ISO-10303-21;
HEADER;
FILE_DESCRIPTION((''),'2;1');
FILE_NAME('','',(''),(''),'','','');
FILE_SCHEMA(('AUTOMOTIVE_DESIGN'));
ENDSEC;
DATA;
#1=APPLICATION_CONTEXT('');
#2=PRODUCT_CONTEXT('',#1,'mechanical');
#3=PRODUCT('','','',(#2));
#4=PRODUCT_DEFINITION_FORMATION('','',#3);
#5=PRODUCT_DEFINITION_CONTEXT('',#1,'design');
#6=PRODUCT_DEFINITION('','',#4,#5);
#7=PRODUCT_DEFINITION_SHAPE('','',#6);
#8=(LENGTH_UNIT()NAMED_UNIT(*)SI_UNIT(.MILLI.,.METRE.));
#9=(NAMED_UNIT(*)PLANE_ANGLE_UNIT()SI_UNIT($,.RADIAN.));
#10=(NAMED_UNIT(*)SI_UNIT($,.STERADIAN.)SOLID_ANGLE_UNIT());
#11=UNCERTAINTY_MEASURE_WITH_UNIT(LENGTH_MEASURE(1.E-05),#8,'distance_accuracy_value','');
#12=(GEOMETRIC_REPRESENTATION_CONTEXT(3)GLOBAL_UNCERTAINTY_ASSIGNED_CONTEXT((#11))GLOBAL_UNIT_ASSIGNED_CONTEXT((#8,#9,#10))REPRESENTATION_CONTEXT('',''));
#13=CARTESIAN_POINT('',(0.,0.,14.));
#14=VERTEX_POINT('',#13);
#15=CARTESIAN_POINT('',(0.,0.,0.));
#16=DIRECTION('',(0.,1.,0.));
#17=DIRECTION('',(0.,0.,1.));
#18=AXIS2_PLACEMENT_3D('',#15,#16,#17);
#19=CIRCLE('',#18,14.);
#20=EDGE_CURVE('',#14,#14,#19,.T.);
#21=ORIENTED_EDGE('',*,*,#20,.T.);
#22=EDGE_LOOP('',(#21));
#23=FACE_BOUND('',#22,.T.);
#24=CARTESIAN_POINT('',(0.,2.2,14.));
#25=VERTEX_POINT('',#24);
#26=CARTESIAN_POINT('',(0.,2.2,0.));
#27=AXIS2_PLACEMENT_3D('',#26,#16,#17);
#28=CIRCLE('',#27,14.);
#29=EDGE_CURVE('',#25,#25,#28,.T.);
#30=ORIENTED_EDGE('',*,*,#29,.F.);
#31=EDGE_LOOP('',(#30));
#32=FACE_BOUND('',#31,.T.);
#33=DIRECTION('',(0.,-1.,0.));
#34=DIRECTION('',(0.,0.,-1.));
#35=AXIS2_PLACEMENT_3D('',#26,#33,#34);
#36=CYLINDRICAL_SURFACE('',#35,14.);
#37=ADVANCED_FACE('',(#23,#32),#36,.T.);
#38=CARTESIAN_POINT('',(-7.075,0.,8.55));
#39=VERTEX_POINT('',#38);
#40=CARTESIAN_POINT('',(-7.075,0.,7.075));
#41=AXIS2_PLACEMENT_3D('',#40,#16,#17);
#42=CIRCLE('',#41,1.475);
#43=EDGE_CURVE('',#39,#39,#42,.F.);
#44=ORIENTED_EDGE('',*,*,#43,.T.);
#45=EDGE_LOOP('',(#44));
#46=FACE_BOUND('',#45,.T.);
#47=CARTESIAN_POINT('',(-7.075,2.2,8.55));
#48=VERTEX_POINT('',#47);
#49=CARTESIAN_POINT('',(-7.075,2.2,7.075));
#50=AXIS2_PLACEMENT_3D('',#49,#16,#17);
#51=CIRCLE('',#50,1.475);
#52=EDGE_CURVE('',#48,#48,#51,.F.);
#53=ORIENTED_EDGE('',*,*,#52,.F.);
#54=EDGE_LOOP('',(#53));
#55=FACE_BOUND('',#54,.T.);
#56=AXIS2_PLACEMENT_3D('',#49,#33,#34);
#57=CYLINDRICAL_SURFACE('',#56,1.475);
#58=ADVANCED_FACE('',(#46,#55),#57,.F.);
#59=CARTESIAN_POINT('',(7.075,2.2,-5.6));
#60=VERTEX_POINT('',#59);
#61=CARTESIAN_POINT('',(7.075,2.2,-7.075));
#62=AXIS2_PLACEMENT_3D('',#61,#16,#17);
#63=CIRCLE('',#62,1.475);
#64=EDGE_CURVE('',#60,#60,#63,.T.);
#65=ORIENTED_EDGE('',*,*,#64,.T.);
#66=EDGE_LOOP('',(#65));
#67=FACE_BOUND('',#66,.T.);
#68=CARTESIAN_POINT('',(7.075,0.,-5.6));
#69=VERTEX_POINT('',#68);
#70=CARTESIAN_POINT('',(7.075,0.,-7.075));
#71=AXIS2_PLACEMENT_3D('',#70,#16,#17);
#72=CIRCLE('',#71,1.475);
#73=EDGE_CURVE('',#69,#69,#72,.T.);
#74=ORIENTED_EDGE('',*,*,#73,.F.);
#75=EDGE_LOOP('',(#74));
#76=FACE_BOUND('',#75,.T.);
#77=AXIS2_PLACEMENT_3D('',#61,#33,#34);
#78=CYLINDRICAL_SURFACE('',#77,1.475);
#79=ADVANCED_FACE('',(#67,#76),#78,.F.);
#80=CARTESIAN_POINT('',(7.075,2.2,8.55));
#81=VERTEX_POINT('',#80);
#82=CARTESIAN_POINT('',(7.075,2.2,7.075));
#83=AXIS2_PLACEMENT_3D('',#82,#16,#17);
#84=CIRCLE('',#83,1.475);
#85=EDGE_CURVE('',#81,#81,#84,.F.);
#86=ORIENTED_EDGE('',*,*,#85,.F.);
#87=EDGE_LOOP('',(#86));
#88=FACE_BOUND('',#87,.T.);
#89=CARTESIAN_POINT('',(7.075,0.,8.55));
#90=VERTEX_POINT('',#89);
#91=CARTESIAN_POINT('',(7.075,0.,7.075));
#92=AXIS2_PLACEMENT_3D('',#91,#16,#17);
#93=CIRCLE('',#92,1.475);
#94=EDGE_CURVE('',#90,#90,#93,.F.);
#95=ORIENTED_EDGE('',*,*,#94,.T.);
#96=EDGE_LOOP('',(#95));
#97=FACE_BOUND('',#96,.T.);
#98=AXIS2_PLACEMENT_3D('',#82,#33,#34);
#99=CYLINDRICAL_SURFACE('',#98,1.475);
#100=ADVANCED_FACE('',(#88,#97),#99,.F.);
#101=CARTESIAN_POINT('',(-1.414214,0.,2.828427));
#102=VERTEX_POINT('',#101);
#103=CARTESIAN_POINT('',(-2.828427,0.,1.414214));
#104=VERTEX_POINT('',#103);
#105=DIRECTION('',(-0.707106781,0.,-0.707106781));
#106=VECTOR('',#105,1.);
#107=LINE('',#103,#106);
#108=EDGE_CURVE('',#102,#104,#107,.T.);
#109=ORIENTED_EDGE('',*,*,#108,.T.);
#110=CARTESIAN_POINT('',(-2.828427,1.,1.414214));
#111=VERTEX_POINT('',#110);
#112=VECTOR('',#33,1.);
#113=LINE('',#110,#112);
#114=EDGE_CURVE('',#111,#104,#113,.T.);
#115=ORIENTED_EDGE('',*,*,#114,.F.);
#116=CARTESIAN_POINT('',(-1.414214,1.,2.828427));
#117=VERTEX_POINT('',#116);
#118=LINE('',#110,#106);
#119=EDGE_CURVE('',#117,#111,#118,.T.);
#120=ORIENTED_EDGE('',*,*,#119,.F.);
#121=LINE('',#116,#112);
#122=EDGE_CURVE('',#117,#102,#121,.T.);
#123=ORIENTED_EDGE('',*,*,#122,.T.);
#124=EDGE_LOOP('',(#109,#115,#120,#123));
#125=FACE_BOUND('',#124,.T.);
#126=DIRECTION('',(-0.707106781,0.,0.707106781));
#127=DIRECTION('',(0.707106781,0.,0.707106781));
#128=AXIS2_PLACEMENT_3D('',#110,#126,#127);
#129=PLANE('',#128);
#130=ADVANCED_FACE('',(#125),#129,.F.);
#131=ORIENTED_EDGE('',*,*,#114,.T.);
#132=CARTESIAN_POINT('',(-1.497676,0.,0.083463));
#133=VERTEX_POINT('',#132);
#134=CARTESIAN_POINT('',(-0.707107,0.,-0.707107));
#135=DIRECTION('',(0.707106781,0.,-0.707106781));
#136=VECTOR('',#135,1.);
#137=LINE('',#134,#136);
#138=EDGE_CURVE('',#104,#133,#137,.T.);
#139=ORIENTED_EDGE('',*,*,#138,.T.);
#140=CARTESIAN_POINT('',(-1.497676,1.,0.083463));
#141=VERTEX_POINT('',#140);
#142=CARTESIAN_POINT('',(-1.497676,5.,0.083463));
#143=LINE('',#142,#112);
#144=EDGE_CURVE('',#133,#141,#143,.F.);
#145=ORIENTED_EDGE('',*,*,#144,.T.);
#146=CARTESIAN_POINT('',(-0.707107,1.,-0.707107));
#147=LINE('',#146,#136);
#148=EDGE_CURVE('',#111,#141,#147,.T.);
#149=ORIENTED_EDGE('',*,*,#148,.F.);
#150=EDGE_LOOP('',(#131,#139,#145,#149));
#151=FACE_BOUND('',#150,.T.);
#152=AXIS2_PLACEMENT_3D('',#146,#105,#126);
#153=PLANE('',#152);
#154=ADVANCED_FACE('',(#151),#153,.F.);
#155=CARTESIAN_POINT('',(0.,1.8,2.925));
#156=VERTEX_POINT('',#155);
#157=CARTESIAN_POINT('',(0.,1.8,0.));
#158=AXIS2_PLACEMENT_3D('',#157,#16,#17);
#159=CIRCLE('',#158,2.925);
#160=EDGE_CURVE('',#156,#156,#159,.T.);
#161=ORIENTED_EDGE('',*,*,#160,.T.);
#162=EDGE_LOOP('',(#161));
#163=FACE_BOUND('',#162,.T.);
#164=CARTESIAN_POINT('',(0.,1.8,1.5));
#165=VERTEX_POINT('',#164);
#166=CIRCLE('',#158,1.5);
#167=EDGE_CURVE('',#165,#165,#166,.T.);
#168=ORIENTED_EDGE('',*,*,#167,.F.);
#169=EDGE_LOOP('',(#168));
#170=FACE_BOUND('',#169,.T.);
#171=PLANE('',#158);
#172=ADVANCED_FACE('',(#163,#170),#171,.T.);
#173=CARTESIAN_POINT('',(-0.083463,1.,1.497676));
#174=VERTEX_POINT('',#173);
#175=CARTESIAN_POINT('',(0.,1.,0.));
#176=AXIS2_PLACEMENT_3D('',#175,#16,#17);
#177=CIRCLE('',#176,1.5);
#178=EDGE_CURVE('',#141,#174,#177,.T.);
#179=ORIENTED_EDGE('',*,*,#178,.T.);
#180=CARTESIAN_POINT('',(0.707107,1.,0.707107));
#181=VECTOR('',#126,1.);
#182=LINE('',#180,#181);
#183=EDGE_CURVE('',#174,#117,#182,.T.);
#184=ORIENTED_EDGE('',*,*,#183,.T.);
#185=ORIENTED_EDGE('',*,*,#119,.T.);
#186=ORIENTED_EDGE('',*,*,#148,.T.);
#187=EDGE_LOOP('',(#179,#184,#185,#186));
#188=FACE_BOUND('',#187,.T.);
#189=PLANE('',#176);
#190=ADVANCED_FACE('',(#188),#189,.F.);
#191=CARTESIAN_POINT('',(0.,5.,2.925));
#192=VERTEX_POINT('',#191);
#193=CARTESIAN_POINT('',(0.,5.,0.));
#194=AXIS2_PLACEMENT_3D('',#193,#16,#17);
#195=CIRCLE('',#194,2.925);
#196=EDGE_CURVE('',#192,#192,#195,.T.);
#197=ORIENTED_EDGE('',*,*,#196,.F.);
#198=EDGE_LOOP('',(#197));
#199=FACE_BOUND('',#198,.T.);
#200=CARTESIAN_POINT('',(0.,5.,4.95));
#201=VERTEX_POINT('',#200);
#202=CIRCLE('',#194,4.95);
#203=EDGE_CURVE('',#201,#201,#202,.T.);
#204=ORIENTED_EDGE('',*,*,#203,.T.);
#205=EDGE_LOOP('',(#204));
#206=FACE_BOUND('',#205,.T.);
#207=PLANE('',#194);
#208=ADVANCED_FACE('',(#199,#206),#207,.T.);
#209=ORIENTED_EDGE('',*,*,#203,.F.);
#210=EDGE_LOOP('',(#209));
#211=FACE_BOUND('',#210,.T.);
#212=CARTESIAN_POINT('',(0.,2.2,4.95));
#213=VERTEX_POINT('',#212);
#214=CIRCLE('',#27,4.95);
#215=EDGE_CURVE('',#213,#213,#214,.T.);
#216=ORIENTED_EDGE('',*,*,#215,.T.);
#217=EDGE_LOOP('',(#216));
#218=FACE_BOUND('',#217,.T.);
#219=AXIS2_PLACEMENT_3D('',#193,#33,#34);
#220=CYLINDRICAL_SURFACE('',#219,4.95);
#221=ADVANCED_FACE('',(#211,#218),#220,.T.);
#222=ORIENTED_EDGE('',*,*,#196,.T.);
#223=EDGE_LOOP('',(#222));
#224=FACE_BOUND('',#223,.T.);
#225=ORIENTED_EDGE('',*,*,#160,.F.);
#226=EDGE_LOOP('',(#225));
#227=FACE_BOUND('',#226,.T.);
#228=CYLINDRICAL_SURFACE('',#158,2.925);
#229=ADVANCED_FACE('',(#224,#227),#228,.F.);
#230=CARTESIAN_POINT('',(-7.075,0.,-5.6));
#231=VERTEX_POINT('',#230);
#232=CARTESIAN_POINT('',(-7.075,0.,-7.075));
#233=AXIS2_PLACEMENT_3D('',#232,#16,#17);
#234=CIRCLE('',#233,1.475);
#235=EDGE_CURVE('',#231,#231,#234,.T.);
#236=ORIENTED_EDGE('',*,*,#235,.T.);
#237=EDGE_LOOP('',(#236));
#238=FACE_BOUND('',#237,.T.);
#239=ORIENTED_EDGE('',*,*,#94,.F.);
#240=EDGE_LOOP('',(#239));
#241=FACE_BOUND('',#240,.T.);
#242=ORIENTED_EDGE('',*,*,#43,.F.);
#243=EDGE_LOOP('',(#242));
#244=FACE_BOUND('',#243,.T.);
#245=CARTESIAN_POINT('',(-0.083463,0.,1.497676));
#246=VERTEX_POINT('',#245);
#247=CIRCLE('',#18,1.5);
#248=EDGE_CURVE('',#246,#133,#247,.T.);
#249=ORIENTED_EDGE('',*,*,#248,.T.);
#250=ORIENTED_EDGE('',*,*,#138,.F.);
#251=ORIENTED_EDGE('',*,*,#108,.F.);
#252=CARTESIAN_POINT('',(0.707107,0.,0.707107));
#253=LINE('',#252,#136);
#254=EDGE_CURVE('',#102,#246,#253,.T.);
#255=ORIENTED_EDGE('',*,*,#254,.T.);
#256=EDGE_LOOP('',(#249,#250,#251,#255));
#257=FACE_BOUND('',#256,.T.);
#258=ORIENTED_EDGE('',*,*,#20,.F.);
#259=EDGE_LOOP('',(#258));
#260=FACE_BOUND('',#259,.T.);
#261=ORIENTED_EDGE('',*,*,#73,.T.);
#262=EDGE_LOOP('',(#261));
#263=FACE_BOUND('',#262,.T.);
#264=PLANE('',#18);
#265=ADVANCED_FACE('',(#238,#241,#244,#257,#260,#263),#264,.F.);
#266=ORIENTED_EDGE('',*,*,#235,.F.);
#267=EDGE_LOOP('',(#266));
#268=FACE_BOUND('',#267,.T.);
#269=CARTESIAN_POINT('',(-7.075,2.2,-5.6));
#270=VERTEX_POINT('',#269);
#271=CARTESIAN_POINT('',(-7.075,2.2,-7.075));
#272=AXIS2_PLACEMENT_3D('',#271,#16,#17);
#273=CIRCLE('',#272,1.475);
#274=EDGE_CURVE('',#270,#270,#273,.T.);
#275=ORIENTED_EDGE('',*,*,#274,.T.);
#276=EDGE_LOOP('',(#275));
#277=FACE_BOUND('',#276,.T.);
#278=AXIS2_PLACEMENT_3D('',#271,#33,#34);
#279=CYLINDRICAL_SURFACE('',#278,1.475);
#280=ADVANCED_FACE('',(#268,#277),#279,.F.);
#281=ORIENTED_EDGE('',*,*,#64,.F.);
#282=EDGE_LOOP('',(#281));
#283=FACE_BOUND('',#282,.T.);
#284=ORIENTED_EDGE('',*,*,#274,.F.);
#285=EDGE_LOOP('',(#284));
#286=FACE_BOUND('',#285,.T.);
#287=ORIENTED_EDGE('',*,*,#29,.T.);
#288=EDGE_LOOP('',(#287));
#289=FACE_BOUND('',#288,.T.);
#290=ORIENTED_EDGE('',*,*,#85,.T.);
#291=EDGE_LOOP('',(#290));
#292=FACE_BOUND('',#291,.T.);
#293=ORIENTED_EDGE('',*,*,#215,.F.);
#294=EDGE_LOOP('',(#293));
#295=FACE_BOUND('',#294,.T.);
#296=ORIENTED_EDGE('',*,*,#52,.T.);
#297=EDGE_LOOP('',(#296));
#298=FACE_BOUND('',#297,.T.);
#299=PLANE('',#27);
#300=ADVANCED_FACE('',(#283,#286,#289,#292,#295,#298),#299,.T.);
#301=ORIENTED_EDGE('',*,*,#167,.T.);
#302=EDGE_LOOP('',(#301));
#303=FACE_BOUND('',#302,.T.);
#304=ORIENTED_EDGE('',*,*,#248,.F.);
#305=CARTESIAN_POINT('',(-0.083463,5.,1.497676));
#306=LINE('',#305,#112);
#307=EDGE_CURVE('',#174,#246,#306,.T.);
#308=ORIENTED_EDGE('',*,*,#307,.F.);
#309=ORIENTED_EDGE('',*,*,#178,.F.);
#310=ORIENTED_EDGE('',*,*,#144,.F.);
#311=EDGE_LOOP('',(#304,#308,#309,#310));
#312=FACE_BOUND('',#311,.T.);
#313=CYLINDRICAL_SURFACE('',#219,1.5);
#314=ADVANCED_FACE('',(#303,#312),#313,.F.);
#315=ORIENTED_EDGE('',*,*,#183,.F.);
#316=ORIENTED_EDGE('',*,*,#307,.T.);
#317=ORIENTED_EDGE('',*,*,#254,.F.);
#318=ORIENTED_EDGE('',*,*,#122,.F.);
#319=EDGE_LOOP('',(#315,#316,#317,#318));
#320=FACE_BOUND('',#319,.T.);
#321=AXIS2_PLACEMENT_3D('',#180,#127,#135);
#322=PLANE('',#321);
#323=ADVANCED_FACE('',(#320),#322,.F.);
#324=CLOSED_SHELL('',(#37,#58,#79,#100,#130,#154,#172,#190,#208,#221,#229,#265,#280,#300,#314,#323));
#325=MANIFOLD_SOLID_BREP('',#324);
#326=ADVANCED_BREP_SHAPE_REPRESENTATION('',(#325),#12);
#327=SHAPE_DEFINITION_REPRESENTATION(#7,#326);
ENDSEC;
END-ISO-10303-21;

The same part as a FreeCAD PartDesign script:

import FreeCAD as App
import Part
import Sketcher
from FreeCAD import Vector
Q = App.Units.Quantity


def add_polygon(sketch, points):
    """Adds a closed chain of lines whose ends are joined by coincident constraints."""
    first, n = sketch.GeometryCount, len(points)
    for a, b in zip(points, points[1:] + points[:1]):
        sketch.addGeometry(Part.LineSegment(App.Vector(*a, 0), App.Vector(*b, 0)), False)
    for i in range(n):
        sketch.addConstraint(Sketcher.Constraint("Coincident", first + i, 2, first + (i + 1) % n, 1))

doc = App.newDocument("Part")
body = doc.addObject("PartDesign::Body", "Body")

# Sketch on XZ plane
sketch1 = body.newObject("Sketcher::SketchObject", "Sketch")
sketch1.AttachmentSupport = (doc.getObject("XZ_Plane"), [""])
sketch1.MapMode = "FlatFace"
sketch1.addGeometry([
    Part.Circle(Vector(0, 0, 0), Vector(0, 0, 1), 14),  # 0
    Part.Circle(Vector(-7.1, -7.1, 0), Vector(0, 0, 1), 1.5),  # 1
    Part.Circle(Vector(-7.1, 7.1, 0), Vector(0, 0, 1), 1.5),  # 2
    Part.Circle(Vector(7.1, -7.1, 0), Vector(0, 0, 1), 1.5),  # 3
    Part.Circle(Vector(0, 0, 0), Vector(0, 0, 1), 5),  # 4
    Part.Circle(Vector(7.1, 7.1, 0), Vector(0, 0, 1), 1.5),  # 5
], False)
sketch1.addConstraint([
    Sketcher.Constraint("Coincident", 0, 3, -1, 1),
    Sketcher.Constraint("Coincident", 4, 3, -1, 1),
    Sketcher.Constraint("Equal", 1, 2),
    Sketcher.Constraint("Equal", 2, 3),
    Sketcher.Constraint("Equal", 3, 5),
    Sketcher.Constraint("Symmetric", 2, 3, 3, 3, -1, 1),
    Sketcher.Constraint("Symmetric", 1, 3, 5, 3, -1, 1),
    Sketcher.Constraint("Symmetric", 1, 3, 3, 3, -2),
    Sketcher.Constraint("Diameter", 0, 28.0),
    Sketcher.Constraint("Diameter", 4, 9.9),
    Sketcher.Constraint("Diameter", 1, 2.95),
    Sketcher.Constraint("DistanceY", 1, 3, 2, 3, 14.15),
    Sketcher.Constraint("DistanceX", 1, 3, 3, 3, 14.15),
])
pad1 = body.newObject("PartDesign::Pad", "Pad")
pad1.Profile = sketch1
pad1.Length = 2.2
pad1.Reversed = True

# Sketch on XZ plane
sketch2 = body.newObject("Sketcher::SketchObject", "Sketch001")
sketch2.AttachmentSupport = (doc.getObject("XZ_Plane"), [""])
sketch2.MapMode = "FlatFace"
sketch2.addGeometry([
    Part.Circle(Vector(0, 0, 0), Vector(0, 0, 1), 5),
    Part.Circle(Vector(0, 0, 0), Vector(0, 0, 1), 1.5),
], False)
sketch2.addConstraint([
    Sketcher.Constraint("Coincident", 0, 3, -1, 1),
    Sketcher.Constraint("Coincident", 1, 3, -1, 1),
    Sketcher.Constraint("Diameter", 1, 3.0),
    Sketcher.Constraint("Diameter", 0, 9.9),
])
pad2 = body.newObject("PartDesign::Pad", "Pad001")
pad2.Profile = sketch2
pad2.Length = 5
pad2.Reversed = True

# Sketch on XZ plane
sketch3 = body.newObject("Sketcher::SketchObject", "Sketch002")
sketch3.AttachmentSupport = (doc.getObject("XZ_Plane"), [""])
sketch3.MapMode = "FlatFace"
sketch3.AttachmentOffset = App.Placement(Vector(0, 0, -5), App.Rotation())
sketch3.addGeometry(Part.Circle(Vector(0, 0, 0), Vector(0, 0, 1), 2.9), False)
sketch3.addConstraint([
    Sketcher.Constraint("Coincident", 0, 3, -1, 1),
    Sketcher.Constraint("Diameter", 0, 5.85),
])
pocket1 = body.newObject("PartDesign::Pocket", "Pocket")
pocket1.Profile = sketch3
pocket1.Length = 3.2
pocket1.Reversed = True

# Sketch on XZ plane
sketch4 = body.newObject("Sketcher::SketchObject", "Sketch003")
sketch4.AttachmentSupport = (doc.getObject("XZ_Plane"), [""])
sketch4.MapMode = "FlatFace"
add_polygon(sketch4, [(-0.7, -0.7), (0.7, 0.7), (-1.4, 2.8), (-2.8, 1.4)])  # lines 0-3
sketch4.addConstraint([
    Sketcher.Constraint("Symmetric", 0, 2, 3, 2, -1, 1),
    Sketcher.Constraint("Perpendicular", 0, 1),
    Sketcher.Constraint("Perpendicular", 1, 2),
    Sketcher.Constraint("Perpendicular", 2, 3),
    Sketcher.Constraint("Angle", 0, Q("45 deg")),
    Sketcher.Constraint("Distance", 0, 2.0),
    Sketcher.Constraint("Distance", 1, 3.0),
])
pocket2 = body.newObject("PartDesign::Pocket", "Pocket001")
pocket2.Profile = sketch4
pocket2.Length = 1

doc.recompute()
